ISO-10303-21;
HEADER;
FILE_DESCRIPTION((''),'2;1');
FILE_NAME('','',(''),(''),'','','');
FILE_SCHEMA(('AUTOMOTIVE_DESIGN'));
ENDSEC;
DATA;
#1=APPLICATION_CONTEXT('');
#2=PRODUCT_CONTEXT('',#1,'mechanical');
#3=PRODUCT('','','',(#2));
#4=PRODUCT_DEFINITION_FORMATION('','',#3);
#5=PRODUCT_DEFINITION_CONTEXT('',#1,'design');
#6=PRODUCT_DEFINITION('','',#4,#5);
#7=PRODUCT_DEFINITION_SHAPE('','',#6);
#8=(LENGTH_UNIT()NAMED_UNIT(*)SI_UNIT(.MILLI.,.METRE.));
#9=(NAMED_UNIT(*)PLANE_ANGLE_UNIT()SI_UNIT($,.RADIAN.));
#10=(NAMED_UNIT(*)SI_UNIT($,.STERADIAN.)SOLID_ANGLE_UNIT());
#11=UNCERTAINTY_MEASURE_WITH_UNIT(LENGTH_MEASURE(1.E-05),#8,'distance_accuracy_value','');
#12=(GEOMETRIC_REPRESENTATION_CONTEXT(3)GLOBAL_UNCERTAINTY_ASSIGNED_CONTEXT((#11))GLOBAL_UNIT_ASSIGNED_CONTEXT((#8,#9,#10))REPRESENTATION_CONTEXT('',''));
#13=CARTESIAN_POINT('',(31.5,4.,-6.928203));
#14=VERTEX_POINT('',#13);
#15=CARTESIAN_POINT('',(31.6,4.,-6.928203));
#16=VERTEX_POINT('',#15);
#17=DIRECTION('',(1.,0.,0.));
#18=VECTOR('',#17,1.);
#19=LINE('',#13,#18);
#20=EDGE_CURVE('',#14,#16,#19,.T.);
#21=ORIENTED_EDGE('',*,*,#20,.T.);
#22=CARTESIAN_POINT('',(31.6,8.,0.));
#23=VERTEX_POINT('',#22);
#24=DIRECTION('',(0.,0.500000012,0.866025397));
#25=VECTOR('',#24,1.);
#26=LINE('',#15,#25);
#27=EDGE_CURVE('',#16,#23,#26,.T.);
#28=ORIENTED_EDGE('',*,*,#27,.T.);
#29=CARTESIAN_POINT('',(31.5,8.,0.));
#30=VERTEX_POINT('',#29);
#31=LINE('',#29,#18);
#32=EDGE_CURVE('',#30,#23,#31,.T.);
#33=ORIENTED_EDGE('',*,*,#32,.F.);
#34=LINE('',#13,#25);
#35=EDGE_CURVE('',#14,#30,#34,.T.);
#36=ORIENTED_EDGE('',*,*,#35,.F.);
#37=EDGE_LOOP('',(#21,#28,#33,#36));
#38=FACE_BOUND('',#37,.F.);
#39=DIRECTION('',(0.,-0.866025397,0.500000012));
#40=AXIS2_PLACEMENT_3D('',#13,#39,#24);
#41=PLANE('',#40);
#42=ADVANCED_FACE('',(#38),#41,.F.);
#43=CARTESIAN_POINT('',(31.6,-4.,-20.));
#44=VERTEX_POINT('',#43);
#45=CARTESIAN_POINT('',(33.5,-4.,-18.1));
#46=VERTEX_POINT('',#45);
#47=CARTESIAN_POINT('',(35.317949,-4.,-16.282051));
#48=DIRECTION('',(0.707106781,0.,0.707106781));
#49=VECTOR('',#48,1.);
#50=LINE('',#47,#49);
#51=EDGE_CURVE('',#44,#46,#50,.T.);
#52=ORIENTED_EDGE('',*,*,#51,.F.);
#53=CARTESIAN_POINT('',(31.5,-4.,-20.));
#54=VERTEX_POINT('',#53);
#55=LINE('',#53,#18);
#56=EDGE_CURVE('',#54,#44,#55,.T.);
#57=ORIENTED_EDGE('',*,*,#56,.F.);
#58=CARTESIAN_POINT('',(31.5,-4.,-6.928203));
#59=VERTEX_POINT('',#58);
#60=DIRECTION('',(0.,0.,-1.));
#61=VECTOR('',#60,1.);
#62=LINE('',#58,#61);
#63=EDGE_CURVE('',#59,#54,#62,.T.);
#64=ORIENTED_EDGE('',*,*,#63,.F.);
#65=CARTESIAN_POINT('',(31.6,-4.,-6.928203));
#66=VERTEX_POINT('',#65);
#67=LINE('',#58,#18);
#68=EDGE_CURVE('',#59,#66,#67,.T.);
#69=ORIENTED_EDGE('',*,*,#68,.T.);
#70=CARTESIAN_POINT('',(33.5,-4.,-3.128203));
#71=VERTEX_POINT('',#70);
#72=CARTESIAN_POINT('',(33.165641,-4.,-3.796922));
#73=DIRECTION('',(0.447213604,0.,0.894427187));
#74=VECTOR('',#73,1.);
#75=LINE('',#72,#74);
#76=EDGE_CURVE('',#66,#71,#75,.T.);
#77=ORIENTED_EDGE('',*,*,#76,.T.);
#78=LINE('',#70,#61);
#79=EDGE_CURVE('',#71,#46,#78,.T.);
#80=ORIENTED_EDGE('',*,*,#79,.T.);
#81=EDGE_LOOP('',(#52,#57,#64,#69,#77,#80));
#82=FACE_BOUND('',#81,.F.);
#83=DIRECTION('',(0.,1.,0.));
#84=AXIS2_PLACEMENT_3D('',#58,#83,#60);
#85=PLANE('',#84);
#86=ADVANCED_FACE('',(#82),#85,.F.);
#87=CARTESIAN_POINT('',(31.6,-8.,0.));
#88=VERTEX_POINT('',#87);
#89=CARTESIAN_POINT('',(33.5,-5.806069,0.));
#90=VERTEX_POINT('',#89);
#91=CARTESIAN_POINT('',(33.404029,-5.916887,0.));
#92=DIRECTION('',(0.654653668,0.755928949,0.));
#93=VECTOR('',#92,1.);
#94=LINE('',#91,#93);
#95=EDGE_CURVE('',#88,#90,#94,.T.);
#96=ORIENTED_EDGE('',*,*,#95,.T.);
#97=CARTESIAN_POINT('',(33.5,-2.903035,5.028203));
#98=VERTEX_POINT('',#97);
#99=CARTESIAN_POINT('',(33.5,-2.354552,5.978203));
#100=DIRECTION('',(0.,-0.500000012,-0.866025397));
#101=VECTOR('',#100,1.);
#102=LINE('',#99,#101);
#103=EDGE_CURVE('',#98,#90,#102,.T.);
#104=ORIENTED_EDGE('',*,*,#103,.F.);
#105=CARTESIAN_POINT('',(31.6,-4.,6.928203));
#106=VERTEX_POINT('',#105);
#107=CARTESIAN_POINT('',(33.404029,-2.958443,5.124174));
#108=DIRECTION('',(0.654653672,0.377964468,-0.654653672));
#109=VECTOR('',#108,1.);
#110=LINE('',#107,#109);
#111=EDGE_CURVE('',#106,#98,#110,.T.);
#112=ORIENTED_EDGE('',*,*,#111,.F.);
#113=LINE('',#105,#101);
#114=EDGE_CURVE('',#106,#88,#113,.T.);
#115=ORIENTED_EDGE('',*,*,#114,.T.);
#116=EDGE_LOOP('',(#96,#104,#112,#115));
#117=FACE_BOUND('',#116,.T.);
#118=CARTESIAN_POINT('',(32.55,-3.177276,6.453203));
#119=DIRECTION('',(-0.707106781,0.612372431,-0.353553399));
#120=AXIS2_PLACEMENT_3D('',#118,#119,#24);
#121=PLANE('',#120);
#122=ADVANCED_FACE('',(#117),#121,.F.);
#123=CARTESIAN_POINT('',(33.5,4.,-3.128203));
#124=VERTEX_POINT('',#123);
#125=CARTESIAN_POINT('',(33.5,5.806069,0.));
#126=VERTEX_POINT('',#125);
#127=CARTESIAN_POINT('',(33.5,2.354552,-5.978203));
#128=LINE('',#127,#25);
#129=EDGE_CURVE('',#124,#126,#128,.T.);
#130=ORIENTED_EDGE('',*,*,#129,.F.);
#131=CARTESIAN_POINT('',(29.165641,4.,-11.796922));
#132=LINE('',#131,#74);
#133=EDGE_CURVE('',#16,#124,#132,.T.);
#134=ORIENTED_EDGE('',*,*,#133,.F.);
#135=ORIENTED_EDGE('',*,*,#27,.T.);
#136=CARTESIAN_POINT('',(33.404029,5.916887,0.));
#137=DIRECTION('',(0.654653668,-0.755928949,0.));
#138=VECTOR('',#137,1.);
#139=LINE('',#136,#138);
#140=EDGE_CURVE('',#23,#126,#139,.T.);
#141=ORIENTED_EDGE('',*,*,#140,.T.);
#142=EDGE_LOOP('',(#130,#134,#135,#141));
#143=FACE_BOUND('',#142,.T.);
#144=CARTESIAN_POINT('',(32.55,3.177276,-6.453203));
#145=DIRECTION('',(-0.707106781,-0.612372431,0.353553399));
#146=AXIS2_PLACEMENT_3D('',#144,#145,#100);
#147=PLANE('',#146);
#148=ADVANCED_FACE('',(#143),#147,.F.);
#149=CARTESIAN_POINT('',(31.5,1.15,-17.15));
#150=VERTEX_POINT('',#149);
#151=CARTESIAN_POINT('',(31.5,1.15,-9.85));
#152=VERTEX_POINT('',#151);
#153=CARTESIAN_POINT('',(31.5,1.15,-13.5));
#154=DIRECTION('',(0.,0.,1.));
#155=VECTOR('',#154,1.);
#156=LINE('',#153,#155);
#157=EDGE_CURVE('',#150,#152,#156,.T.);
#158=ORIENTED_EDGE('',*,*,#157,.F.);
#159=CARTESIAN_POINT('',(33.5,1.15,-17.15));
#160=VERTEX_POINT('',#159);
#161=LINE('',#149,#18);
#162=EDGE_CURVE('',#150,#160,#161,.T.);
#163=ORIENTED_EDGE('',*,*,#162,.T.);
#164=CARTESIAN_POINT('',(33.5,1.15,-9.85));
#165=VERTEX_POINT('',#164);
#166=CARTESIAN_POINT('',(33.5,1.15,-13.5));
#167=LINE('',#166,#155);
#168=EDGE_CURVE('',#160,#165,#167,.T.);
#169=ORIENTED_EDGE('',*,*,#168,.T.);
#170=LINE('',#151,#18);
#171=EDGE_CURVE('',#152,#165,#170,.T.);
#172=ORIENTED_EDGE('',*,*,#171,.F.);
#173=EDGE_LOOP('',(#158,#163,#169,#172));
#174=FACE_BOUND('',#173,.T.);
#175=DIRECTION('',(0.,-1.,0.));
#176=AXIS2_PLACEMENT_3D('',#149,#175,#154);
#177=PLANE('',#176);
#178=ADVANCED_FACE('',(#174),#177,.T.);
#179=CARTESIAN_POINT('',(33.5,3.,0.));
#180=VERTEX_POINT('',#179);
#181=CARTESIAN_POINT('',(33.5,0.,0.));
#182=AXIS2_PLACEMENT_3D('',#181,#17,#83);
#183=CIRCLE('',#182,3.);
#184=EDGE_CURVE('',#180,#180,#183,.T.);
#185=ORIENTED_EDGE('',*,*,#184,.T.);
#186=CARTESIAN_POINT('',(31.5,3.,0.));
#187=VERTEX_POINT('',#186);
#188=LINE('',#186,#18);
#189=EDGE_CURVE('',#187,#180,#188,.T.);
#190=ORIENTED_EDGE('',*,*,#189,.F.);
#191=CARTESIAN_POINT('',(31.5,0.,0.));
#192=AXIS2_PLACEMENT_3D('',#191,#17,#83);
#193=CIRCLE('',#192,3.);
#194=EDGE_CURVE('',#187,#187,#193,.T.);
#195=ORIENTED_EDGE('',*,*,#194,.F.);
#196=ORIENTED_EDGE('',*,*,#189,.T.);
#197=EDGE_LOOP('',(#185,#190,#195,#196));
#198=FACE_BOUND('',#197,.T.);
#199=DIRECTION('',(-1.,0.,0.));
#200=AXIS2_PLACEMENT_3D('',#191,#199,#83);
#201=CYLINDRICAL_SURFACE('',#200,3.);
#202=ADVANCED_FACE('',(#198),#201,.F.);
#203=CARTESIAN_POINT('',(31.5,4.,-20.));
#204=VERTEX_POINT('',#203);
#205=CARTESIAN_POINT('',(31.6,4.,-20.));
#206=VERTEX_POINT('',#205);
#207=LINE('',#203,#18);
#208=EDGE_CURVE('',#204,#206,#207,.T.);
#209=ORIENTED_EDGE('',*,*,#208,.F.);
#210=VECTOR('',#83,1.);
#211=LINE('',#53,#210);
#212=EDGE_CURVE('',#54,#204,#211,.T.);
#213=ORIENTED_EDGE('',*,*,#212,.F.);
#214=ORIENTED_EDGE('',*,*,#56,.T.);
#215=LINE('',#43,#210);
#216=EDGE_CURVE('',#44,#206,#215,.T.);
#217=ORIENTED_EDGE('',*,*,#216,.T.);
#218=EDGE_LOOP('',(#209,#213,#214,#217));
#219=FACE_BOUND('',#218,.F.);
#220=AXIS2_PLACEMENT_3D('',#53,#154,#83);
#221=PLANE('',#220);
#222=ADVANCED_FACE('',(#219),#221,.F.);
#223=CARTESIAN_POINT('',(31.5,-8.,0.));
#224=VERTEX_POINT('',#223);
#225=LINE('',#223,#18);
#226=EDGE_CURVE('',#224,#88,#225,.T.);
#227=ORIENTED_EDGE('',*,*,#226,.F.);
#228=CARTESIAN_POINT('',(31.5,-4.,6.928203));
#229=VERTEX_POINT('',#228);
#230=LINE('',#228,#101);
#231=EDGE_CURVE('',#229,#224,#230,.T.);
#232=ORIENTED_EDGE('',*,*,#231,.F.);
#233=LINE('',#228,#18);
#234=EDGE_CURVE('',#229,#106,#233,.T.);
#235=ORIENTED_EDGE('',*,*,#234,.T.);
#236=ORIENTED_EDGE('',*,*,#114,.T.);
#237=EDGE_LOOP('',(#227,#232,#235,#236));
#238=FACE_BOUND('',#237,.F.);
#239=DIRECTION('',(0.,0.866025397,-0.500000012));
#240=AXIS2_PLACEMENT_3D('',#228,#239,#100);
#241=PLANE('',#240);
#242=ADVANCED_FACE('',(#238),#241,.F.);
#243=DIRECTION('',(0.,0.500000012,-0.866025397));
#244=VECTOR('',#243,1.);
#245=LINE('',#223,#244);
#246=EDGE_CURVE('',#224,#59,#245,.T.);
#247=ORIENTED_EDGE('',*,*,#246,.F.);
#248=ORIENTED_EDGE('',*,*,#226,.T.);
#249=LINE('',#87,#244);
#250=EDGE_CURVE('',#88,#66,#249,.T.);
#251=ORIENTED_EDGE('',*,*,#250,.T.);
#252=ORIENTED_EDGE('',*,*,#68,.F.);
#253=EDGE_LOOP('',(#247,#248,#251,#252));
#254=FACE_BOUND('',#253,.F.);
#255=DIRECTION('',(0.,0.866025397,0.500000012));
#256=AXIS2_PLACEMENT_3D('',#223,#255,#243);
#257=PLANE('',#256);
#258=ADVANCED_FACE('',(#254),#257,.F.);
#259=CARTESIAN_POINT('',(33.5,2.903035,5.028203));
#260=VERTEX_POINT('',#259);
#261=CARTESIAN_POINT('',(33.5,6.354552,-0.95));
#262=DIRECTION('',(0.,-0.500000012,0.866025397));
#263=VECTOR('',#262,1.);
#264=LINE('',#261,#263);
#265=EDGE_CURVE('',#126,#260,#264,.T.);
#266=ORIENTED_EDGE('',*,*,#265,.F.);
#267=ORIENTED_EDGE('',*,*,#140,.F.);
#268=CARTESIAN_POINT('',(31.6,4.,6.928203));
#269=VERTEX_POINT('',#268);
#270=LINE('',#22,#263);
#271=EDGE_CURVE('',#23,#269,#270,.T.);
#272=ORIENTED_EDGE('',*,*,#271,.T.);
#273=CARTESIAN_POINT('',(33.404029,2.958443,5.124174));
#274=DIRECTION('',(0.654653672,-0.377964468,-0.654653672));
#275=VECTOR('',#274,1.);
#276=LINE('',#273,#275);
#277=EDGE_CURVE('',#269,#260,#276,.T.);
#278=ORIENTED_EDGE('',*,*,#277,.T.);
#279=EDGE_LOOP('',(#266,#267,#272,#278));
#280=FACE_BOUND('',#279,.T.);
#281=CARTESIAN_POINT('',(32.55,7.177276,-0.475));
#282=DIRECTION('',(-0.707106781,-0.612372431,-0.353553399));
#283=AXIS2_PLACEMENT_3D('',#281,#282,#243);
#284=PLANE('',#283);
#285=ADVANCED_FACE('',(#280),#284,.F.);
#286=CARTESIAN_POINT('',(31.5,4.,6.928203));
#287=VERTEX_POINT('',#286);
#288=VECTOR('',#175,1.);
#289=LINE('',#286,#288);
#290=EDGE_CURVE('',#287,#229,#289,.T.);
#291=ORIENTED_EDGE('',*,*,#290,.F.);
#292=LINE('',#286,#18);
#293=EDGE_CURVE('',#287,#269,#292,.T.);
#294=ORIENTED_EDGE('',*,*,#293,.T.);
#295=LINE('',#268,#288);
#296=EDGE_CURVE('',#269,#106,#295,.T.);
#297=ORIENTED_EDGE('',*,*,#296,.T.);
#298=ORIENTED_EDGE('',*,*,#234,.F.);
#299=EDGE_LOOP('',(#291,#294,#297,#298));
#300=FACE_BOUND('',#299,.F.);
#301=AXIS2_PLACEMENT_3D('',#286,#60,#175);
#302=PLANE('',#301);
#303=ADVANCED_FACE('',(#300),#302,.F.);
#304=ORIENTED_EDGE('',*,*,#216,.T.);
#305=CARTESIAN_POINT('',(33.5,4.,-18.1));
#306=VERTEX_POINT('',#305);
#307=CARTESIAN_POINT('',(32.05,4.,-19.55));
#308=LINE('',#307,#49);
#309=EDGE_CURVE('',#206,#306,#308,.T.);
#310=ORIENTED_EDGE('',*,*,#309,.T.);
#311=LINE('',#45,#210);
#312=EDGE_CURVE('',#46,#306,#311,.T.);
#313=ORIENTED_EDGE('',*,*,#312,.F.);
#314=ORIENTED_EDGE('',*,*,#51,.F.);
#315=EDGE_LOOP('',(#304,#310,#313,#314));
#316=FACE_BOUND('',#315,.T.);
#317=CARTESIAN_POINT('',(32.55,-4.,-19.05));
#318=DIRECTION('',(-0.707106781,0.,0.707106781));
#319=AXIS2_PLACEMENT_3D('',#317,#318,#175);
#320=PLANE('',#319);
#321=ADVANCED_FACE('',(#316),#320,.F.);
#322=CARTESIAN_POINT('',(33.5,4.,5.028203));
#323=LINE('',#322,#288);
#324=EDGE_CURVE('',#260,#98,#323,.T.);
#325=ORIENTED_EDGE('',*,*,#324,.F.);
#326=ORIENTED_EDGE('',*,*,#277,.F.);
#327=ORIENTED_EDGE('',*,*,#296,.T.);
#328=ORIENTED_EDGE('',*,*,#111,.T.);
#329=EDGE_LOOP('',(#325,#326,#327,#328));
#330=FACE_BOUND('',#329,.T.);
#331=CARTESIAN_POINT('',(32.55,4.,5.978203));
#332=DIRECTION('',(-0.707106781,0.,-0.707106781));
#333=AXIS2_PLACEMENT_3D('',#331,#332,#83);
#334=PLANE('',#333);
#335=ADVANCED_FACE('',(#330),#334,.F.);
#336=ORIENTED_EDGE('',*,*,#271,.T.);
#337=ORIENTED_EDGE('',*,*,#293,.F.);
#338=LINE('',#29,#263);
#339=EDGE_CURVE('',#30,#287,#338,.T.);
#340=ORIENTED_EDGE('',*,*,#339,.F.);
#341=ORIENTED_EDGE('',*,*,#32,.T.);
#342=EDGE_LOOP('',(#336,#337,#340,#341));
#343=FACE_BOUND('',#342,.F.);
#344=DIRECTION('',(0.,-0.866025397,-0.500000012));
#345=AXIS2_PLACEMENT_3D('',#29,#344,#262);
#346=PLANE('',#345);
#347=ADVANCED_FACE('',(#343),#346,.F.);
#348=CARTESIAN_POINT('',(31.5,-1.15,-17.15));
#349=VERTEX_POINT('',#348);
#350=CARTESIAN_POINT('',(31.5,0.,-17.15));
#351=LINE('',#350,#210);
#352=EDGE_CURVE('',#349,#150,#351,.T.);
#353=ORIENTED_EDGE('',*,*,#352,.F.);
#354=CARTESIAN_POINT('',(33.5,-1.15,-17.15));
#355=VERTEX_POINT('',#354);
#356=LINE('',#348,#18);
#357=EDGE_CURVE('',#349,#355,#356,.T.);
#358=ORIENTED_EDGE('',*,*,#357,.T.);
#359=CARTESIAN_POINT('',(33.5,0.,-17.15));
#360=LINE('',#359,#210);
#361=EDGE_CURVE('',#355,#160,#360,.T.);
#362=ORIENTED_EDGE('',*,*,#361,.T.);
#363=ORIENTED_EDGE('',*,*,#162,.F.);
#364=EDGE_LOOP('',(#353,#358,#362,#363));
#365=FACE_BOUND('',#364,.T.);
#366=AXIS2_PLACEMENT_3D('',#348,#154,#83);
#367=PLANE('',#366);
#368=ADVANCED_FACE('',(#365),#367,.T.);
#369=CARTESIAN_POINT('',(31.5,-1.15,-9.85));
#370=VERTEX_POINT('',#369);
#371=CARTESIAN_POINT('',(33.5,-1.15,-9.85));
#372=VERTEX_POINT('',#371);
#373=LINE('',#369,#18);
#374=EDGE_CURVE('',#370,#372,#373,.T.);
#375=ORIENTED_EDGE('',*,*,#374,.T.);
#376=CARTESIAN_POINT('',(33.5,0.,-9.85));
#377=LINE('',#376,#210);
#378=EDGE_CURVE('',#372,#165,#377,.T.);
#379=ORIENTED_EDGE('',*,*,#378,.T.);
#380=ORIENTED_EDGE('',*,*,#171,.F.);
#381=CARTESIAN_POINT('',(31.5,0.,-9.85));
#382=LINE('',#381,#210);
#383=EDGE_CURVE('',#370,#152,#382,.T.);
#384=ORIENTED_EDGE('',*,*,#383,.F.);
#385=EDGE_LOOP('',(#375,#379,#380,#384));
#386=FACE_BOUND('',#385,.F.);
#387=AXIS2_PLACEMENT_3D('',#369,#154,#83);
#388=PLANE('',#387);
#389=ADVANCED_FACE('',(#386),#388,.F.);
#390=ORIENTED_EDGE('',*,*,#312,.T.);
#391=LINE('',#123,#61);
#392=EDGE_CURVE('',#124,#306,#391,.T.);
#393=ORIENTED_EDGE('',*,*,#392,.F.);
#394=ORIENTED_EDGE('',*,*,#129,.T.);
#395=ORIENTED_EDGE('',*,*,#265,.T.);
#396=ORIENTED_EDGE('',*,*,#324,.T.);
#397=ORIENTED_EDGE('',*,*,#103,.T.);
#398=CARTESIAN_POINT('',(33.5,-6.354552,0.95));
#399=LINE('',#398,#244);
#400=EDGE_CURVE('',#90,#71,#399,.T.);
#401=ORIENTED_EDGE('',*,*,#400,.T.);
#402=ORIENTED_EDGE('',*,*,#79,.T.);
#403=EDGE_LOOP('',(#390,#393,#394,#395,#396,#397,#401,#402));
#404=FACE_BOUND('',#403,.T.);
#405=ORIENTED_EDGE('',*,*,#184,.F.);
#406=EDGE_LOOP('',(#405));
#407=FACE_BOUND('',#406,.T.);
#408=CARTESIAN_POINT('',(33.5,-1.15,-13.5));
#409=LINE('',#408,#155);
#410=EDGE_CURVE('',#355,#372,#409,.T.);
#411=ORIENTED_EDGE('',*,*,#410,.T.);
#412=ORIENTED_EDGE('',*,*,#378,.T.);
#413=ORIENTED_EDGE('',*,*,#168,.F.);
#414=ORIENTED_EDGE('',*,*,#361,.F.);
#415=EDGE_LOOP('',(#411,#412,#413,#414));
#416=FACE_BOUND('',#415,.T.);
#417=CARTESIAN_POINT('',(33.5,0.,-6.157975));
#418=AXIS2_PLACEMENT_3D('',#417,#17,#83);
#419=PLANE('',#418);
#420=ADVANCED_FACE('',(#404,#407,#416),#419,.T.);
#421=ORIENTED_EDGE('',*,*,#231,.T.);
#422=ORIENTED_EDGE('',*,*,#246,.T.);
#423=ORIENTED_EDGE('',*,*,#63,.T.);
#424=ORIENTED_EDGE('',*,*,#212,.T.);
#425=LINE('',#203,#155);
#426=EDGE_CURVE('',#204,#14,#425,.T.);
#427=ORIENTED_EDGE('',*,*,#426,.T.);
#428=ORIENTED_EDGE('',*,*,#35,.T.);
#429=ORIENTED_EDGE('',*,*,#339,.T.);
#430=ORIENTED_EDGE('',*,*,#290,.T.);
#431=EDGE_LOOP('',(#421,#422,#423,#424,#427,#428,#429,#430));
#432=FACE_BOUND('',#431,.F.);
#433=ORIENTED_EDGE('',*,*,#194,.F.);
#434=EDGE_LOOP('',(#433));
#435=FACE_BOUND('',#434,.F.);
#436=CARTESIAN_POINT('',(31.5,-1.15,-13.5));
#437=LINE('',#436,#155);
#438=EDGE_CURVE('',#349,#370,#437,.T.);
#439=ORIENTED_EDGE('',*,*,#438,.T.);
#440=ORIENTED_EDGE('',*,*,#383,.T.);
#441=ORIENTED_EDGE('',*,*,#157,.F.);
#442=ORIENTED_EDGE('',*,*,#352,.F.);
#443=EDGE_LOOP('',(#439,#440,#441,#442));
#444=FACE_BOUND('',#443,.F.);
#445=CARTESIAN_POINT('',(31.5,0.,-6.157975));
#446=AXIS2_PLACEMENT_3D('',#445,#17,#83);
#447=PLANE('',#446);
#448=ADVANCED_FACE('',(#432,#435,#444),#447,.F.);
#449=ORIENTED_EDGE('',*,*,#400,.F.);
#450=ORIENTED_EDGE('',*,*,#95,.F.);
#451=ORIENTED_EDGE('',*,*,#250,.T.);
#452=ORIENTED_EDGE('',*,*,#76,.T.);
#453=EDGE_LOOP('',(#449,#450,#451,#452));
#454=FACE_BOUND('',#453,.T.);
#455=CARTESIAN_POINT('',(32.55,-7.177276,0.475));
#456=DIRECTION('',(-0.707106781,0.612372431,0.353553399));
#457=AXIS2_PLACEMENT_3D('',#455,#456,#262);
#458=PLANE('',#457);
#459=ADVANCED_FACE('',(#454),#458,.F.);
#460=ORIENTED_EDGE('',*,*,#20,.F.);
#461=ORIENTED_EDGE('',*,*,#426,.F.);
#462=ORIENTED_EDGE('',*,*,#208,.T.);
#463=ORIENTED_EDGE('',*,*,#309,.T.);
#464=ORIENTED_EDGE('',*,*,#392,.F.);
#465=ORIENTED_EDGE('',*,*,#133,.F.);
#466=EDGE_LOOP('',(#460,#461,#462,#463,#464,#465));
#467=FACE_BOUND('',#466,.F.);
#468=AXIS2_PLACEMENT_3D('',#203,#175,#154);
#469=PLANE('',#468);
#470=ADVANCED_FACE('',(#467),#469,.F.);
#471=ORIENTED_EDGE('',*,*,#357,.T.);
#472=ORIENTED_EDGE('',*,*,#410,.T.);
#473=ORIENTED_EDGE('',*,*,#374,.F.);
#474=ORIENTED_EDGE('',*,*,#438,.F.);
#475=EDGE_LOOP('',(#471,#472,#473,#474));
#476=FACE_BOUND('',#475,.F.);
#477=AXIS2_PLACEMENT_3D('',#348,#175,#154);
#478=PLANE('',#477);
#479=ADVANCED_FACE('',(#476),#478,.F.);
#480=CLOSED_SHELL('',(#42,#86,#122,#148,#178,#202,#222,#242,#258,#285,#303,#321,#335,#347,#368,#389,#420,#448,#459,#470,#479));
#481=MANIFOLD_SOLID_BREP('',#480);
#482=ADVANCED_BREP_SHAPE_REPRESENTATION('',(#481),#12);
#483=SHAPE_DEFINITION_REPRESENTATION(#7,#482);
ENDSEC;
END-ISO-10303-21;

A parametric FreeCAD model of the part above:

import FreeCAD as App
import Part
import Sketcher
from FreeCAD import Vector
Q = App.Units.Quantity


def edges_at(feature, points):
    """Names of the edges that pass closest to the given points."""
    edges = feature.Shape.Edges
    near = lambda p: min(range(len(edges)), key=lambda i: edges[i].distToShape(Part.Vertex(*p))[0])
    return sorted({f"Edge{near(p) + 1}" for p in points})

doc = App.newDocument("Part")
body = doc.addObject("PartDesign::Body", "Body")

# Sketch on YZ plane
sketch1 = body.newObject("Sketcher::SketchObject", "Sketch")
sketch1.AttachmentSupport = (doc.getObject("YZ_Plane"), [""])
sketch1.MapMode = "FlatFace"
sketch1.AttachmentOffset = App.Placement(Vector(0, 0, 31.5), App.Rotation())
sketch1.addGeometry([
    Part.LineSegment(Vector(8, 0, 0), Vector(4, 6.9, 0)),  # 0
    Part.LineSegment(Vector(4, 6.9, 0), Vector(-4, 6.9, 0)),  # 1
    Part.LineSegment(Vector(-4, 6.9, 0), Vector(-8, 0, 0)),  # 2
    Part.LineSegment(Vector(-8, 0, 0), Vector(-4, -6.9, 0)),  # 3
    Part.LineSegment(Vector(-4, -6.9, 0), Vector(-4, -20, 0)),  # 4
    Part.LineSegment(Vector(-4, -20, 0), Vector(4, -20, 0)),  # 5
    Part.LineSegment(Vector(4, -20, 0), Vector(4, -6.9, 0)),  # 6
    Part.LineSegment(Vector(4, -6.9, 0), Vector(8, 0, 0)),  # 7
    Part.LineSegment(Vector(1.1, -17.1, 0), Vector(-1.1, -17.1, 0)),  # 8
    Part.LineSegment(Vector(-1.1, -17.1, 0), Vector(-1.1, -9.8, 0)),  # 9
    Part.LineSegment(Vector(-1.1, -9.8, 0), Vector(1.1, -9.8, 0)),  # 10
    Part.LineSegment(Vector(1.1, -9.8, 0), Vector(1.1, -17.1, 0)),  # 11
    Part.Circle(Vector(0, 0, 0), Vector(0, 0, 1), 3),  # 12
], False)
sketch1.addConstraint([
    Sketcher.Constraint("Coincident", 0, 2, 1, 1),
    Sketcher.Constraint("Coincident", 1, 2, 2, 1),
    Sketcher.Constraint("Coincident", 2, 2, 3, 1),
    Sketcher.Constraint("Coincident", 3, 2, 4, 1),
    Sketcher.Constraint("Coincident", 4, 2, 5, 1),
    Sketcher.Constraint("Coincident", 5, 2, 6, 1),
    Sketcher.Constraint("Coincident", 6, 2, 7, 1),
    Sketcher.Constraint("Coincident", 7, 2, 0, 1),
    Sketcher.Constraint("Coincident", 8, 2, 9, 1),
    Sketcher.Constraint("Coincident", 9, 2, 10, 1),
    Sketcher.Constraint("Coincident", 10, 2, 11, 1),
    Sketcher.Constraint("Coincident", 11, 2, 8, 1),
    Sketcher.Constraint("Horizontal", 1),
    Sketcher.Constraint("Vertical", 4),
    Sketcher.Constraint("Horizontal", 5),
    Sketcher.Constraint("Vertical", 6),
    Sketcher.Constraint("Horizontal", 8),
    Sketcher.Constraint("Vertical", 9),
    Sketcher.Constraint("Horizontal", 10),
    Sketcher.Constraint("Vertical", 11),
    Sketcher.Constraint("Coincident", 12, 3, -1, 1),
    Sketcher.Constraint("Symmetric", 0, 2, 3, 2, -1, 1),
    Sketcher.Constraint("Symmetric", 1, 2, 6, 2, -1, 1),
    Sketcher.Constraint("Symmetric", 2, 2, 7, 2, -1, 1),
    Sketcher.Constraint("PointOnObject", 2, 2, -1),
    Sketcher.Constraint("Vertical", 1, 2, 3, 2),
    Sketcher.Constraint("Diameter", 12, Q("6 mm")),
    Sketcher.Constraint("DistanceX", 1, 2, 1, 1, Q("8 mm")),
    Sketcher.Constraint("Angle", 0, Q("120.000001 deg")),
    Sketcher.Constraint("Distance", 0, Q("8 mm")),
    Sketcher.Constraint("DistanceX", 8, 2, 8, 1, Q("2.3 mm")),
    Sketcher.Constraint("DistanceY", 9, 1, 9, 2, Q("7.3 mm")),
    Sketcher.Constraint("DistanceY", 4, 2, -1, 1, Q("20 mm")),
    Sketcher.Constraint("DistanceX", 8, 2, -1, 1, Q("1.15 mm")),
    Sketcher.Constraint("DistanceY", 8, 2, -1, 1, Q("17.15 mm")),
])
pad1 = body.newObject("PartDesign::Pad", "Pad")
pad1.Profile = sketch1
pad1.Length = 2
doc.recompute()

chamfer = body.newObject("PartDesign::Chamfer", "Chamfer")
chamfer.Base = (pad1, edges_at(pad1, [
    (33.5, -6, 3.464),
    (33.5, -6, -3.464),
    (33.5, 0, 6.928),
    (33.5, 6, 3.464),
    (33.5, 6, -3.464),
]))
chamfer.Size = 1.9
doc.recompute()

chamfer2 = body.newObject("PartDesign::Chamfer", "Chamfer001")
chamfer2.Base = (chamfer, edges_at(chamfer, [(33.5, 0, -20)]))
chamfer2.Size = 1.9

doc.recompute()
